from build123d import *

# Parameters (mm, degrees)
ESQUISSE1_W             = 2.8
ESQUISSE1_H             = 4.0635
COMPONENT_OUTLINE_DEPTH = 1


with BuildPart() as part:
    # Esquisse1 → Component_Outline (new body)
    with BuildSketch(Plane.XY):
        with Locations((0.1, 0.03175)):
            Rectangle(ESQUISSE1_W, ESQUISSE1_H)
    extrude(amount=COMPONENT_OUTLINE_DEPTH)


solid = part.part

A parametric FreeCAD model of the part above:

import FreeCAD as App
import Part
import Sketcher


def add_polygon(sketch, points):
    """Adds a closed chain of lines whose ends are joined by coincident constraints."""
    first, n = sketch.GeometryCount, len(points)
    for a, b in zip(points, points[1:] + points[:1]):
        sketch.addGeometry(Part.LineSegment(App.Vector(*a, 0), App.Vector(*b, 0)), False)
    for i in range(n):
        sketch.addConstraint(Sketcher.Constraint("Coincident", first + i, 2, first + (i + 1) % n, 1))

doc = App.newDocument("Part")
params = doc.addObject("Spreadsheet::Sheet", "Params")
for row, (alias, value) in enumerate([
    ("sketch1_width", "2.8 mm"),
    ("pad1_length", "1 mm"),
], start=1):
    params.set(f"A{row}", alias)
    params.set(f"B{row}", "=" + value)
    params.setAlias(f"B{row}", alias)

body = doc.addObject("PartDesign::Body", "Body")

sketch1 = body.newObject("Sketcher::SketchObject", "Sketch")
sketch1.AttachmentSupport = (doc.getObject("XY_Plane"), [""])
sketch1.MapMode = "FlatFace"
add_polygon(sketch1, [(-1.3, 2.0635), (-1.3, -2), (1.5, -2), (1.5, 2.0635)])
sketch1.addConstraint([
    Sketcher.Constraint("Vertical", 0),
    Sketcher.Constraint("Horizontal", 1),
    Sketcher.Constraint("Vertical", 2),
    Sketcher.Constraint("Horizontal", 3),
    Sketcher.Constraint("DistanceX", 1, 1, 1, 2, 2.8),
    Sketcher.Constraint("DistanceY", 0, 2, -1, 1, 2.0),
    Sketcher.Constraint("DistanceX", 0, 2, -1, 1, 1.3),
    Sketcher.Constraint("DistanceY", 0, 2, 0, 1, 4.0635),
])
sketch1.setExpression("Constraints[8]", "Params.sketch1_width")
pad1 = body.newObject("PartDesign::Pad", "Pad")
pad1.Profile = sketch1
pad1.setExpression("Length", "Params.pad1_length")

doc.recompute()
